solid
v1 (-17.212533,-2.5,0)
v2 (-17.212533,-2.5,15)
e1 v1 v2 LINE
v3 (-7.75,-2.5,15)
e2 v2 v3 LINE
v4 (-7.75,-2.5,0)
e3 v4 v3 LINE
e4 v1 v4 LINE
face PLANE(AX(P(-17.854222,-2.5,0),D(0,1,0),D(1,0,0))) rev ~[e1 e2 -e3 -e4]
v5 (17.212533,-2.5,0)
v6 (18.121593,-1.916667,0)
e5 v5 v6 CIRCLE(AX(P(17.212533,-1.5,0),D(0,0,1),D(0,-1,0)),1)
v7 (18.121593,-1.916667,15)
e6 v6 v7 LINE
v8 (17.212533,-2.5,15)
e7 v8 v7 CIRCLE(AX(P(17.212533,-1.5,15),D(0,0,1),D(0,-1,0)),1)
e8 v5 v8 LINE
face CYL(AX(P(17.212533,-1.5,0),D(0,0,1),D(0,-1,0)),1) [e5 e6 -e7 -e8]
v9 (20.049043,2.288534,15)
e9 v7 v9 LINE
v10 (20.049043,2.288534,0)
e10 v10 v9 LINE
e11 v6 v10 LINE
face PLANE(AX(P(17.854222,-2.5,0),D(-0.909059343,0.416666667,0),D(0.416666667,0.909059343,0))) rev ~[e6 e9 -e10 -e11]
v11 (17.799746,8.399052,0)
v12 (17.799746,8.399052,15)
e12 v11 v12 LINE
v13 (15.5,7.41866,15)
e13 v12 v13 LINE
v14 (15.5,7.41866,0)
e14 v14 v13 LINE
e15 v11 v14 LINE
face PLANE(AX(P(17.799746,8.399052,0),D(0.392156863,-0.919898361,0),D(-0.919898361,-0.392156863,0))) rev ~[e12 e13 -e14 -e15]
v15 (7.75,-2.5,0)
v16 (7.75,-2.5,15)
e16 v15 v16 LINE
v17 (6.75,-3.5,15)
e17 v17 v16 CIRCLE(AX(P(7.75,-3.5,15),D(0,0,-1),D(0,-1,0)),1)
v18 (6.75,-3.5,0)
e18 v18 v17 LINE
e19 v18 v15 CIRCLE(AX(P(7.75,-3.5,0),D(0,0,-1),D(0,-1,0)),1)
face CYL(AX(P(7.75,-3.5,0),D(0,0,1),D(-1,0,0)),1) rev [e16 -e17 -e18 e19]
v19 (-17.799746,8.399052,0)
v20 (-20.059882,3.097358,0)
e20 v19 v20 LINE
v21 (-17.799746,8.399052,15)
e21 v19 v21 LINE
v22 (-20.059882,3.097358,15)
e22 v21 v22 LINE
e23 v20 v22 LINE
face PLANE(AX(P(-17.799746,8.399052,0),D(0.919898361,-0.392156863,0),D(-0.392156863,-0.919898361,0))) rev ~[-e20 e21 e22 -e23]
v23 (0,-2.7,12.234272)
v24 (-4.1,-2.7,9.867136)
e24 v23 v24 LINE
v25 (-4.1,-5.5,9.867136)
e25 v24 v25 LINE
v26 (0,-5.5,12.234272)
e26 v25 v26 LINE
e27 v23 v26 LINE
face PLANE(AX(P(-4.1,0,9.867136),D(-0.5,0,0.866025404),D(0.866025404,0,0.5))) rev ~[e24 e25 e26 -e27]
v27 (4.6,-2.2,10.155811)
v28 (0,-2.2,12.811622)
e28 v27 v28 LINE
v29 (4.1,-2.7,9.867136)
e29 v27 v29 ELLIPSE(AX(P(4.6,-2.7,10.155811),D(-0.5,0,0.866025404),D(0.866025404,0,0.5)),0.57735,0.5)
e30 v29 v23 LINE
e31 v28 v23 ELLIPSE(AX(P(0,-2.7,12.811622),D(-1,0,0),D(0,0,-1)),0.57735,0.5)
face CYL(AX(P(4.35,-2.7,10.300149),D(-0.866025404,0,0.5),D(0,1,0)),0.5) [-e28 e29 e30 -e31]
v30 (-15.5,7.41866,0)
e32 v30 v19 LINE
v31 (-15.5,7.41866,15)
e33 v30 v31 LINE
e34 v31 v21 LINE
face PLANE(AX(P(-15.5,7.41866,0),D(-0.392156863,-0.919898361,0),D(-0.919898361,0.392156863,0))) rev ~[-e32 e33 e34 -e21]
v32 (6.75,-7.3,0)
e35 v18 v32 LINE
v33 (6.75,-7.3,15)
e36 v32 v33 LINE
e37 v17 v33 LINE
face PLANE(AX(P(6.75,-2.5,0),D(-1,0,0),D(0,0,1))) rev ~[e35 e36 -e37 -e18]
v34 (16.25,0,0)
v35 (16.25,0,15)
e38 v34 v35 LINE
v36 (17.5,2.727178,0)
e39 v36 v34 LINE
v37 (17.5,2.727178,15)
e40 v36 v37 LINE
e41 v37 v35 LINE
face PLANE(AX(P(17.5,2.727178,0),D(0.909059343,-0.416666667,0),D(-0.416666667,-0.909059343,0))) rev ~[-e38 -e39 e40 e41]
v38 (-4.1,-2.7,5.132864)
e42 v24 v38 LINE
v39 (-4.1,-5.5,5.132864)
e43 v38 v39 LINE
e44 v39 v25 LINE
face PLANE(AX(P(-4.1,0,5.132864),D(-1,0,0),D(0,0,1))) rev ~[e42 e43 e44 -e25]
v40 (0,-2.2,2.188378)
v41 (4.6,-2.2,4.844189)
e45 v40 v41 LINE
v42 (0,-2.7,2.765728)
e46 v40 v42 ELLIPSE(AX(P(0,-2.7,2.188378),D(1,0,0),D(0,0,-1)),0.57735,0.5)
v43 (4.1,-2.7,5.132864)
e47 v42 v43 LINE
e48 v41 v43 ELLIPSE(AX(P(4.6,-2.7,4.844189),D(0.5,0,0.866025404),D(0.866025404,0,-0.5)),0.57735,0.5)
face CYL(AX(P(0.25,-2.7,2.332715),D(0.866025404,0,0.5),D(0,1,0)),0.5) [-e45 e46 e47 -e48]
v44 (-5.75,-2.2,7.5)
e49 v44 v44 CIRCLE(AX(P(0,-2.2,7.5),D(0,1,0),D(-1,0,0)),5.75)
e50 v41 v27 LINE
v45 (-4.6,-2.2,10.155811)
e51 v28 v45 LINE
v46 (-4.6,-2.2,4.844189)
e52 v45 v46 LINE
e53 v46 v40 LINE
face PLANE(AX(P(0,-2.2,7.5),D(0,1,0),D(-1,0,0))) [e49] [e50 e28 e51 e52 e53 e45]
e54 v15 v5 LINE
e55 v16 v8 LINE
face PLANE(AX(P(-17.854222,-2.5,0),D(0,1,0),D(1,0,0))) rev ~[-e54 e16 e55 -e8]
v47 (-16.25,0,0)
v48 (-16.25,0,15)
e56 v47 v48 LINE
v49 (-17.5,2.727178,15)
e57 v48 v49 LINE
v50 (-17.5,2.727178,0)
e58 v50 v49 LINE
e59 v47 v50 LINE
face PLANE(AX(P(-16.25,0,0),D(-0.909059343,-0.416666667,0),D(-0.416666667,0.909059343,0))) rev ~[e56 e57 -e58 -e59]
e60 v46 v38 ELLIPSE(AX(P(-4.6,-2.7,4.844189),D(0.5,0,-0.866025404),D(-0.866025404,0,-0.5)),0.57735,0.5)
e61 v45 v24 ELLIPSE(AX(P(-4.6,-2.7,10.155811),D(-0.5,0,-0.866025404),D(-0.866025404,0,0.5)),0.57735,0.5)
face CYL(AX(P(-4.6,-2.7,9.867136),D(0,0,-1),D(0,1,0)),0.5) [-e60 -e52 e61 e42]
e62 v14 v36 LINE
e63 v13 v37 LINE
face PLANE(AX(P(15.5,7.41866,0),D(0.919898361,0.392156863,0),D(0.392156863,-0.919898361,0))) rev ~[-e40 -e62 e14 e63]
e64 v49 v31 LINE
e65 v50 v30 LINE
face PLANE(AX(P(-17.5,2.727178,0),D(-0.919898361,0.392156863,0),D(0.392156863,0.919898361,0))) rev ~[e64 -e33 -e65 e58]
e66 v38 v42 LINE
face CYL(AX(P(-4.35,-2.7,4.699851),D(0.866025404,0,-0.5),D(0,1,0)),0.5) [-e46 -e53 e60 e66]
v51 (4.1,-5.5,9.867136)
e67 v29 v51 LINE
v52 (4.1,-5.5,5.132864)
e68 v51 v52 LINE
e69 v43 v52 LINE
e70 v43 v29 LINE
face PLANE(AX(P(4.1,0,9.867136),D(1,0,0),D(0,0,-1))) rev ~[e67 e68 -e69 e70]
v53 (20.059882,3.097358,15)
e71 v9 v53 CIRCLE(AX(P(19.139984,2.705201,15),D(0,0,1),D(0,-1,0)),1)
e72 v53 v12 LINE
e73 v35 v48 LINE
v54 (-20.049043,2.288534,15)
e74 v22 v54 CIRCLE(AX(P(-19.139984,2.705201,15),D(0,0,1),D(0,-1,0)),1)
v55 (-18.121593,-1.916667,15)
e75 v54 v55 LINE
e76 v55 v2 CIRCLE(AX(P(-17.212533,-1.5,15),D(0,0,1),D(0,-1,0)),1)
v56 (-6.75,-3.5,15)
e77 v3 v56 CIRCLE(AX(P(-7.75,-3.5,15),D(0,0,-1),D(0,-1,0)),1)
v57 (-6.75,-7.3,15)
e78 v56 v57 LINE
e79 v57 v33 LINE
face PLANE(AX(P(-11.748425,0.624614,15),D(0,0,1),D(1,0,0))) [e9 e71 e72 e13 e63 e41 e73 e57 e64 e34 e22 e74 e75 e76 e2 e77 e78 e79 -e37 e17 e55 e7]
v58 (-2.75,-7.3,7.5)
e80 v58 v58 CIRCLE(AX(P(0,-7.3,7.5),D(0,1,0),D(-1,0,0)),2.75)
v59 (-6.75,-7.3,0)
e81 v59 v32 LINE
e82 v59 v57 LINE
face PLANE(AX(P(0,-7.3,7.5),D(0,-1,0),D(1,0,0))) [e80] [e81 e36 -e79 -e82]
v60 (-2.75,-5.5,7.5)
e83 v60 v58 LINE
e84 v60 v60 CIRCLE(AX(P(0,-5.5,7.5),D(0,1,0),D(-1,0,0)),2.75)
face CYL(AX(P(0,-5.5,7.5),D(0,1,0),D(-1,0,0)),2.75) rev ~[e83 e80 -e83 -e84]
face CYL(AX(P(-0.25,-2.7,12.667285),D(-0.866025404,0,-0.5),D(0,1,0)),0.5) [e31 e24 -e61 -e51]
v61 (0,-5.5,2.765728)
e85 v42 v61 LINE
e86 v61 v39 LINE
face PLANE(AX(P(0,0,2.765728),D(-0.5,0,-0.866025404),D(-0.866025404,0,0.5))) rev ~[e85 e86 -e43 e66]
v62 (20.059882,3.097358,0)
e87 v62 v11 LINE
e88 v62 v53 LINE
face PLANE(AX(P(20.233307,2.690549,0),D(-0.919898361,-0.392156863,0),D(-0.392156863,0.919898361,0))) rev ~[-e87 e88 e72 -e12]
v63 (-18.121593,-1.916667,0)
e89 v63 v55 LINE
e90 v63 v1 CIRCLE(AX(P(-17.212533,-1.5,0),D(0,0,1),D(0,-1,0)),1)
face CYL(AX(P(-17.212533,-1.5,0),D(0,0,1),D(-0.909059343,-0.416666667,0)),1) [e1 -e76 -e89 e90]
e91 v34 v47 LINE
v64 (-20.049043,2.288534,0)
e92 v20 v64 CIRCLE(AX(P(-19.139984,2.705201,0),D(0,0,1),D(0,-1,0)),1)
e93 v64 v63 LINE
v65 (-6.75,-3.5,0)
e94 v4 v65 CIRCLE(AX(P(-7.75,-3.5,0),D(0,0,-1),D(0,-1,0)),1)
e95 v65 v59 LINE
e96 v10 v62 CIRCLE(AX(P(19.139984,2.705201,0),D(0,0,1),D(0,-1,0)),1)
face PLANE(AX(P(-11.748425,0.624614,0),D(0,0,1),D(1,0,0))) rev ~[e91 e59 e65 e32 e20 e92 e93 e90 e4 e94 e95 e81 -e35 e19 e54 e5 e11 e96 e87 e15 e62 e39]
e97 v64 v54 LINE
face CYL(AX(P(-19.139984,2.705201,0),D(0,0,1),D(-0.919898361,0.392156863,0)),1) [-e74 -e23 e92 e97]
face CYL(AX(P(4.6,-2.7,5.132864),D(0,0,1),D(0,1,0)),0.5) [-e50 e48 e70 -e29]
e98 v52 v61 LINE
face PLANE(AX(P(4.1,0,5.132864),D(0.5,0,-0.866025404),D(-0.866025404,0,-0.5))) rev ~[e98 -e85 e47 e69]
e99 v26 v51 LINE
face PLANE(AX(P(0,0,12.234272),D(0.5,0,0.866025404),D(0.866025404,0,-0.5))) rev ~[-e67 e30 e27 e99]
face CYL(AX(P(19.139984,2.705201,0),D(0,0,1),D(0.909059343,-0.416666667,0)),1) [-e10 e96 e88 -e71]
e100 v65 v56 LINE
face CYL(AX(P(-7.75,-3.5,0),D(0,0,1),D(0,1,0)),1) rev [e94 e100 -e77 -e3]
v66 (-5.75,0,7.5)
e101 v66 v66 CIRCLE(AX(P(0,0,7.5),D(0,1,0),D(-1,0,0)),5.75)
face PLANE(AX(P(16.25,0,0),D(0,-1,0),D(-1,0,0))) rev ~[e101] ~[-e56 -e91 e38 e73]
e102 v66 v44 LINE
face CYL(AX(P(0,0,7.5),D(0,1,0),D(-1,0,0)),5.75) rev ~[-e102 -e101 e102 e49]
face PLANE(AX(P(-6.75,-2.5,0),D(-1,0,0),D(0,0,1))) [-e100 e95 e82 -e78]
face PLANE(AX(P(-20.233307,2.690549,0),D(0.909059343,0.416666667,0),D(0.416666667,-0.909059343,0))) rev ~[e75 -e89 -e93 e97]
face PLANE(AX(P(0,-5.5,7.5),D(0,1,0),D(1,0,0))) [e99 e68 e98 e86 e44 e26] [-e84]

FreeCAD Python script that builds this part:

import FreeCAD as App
import Part
import Sketcher
Q = App.Units.Quantity


def edges_at(feature, points):
    """Names of the edges that pass closest to the given points."""
    edges = feature.Shape.Edges
    near = lambda p: min(range(len(edges)), key=lambda i: edges[i].distToShape(Part.Vertex(*p))[0])
    return sorted({f"Edge{near(p) + 1}" for p in points})


def add_polygon(sketch, points):
    """Adds a closed chain of lines whose ends are joined by coincident constraints."""
    first, n = sketch.GeometryCount, len(points)
    for a, b in zip(points, points[1:] + points[:1]):
        sketch.addGeometry(Part.LineSegment(App.Vector(*a, 0), App.Vector(*b, 0)), False)
    for i in range(n):
        sketch.addConstraint(Sketcher.Constraint("Coincident", first + i, 2, first + (i + 1) % n, 1))

doc = App.newDocument("Part")
params = doc.addObject("Spreadsheet::Sheet", "Params")
for row, (alias, value) in enumerate([
    ("sketch1_length", "3 mm"),
    ("sketch1_width", "32.5 mm"),
    ("sketch1_length2", "5.1 mm"),
    ("sketch1_length3", "2.5 mm"),
    ("pad1_length", "15 mm"),
    ("sketch2_height", "15 mm"),
    ("sketch2_width", "13.5 mm"),
    ("pad2_length", "4.8 mm"),
    ("pocket1_length", "5.5 mm"),
    ("sketch4_diameter", "11.5 mm"),
    ("pocket2_length", "2.2 mm"),
    ("sketch5_diameter", "5.5 mm"),
    ("pocket3_length", "1.8 mm"),
    ("fillet_radius", "1 mm"),
    ("fillet2_radius", "0.5 mm"),
], start=1):
    params.set(f"A{row}", alias)
    params.set(f"B{row}", "=" + value)
    params.setAlias(f"B{row}", alias)

body = doc.addObject("PartDesign::Body", "Body")

sketch1 = body.newObject("Sketcher::SketchObject", "Sketch")
sketch1.AttachmentSupport = (doc.getObject("XY_Plane"), [""])
sketch1.MapMode = "FlatFace"
add_polygon(sketch1, [(-16.25, 0), (-17.5, 2.727178), (-15.5, 7.41866), (-17.799746, 8.399052), (-20.233307, 2.690549), (-17.854222, -2.5), (17.854222, -2.5), (20.233307, 2.690549), (17.799746, 8.399052), (15.5, 7.41866), (17.5, 2.727178), (16.25, 0)])
sketch1.addConstraint([
    Sketcher.Constraint("Horizontal", 5),
    Sketcher.Constraint("Horizontal", 11),
    Sketcher.Constraint("Symmetric", 10, 2, 11, 2, -1, 1),
    Sketcher.Constraint("Symmetric", 3, 2, 6, 2, -2),
    Sketcher.Constraint("Symmetric", 2, 2, 7, 2, -2),
    Sketcher.Constraint("Symmetric", 1, 2, 8, 2, -2),
    Sketcher.Constraint("Symmetric", 0, 2, 9, 2, -2),
    Sketcher.Constraint("Perpendicular", 1, 2),
    Sketcher.Constraint("Perpendicular", 2, 3),
    Sketcher.Constraint("Parallel", 0, 4),
    Sketcher.Constraint("Parallel", 6, 10),
    Sketcher.Constraint("Distance", 0, Q("3 mm")),
    Sketcher.Constraint("DistanceX", 11, 2, 11, 1, Q("32.5 mm")),
    Sketcher.Constraint("DistanceX", 0, 2, 1, 2, Q("2 mm")),
    Sketcher.Constraint("DistanceX", 1, 2, 8, 2, Q("31 mm")),
    Sketcher.Constraint("Distance", 1, Q("5.1 mm")),
    Sketcher.Constraint("Distance", 2, Q("2.5 mm")),
    Sketcher.Constraint("DistanceY", 4, 2, -1, 1, Q("2.5 mm")),
    Sketcher.Constraint("Distance", 3, Q("6.20558 mm")),
])
sketch1.setExpression("Constraints[23]", "Params.sketch1_length")
sketch1.setExpression("Constraints[24]", "Params.sketch1_width")
sketch1.setExpression("Constraints[27]", "Params.sketch1_length2")
sketch1.setExpression("Constraints[28]", "Params.sketch1_length3")
pad1 = body.newObject("PartDesign::Pad", "Pad")
pad1.Profile = sketch1
pad1.setExpression("Length", "Params.pad1_length")

sketch2 = body.newObject("Sketcher::SketchObject", "Sketch001")
sketch2.AttachmentSupport = (doc.getObject("XZ_Plane"), [""])
sketch2.MapMode = "FlatFace"
sketch2.AttachmentOffset = App.Placement(App.Vector(0, 0, 2.5), App.Rotation())
add_polygon(sketch2, [(-6.75, 15), (-6.75, 0), (6.75, 0), (6.75, 15)])
sketch2.addConstraint([
    Sketcher.Constraint("Vertical", 0),
    Sketcher.Constraint("Horizontal", 1),
    Sketcher.Constraint("Vertical", 2),
    Sketcher.Constraint("Horizontal", 3),
    Sketcher.Constraint("Symmetric", 0, 2, 1, 2, -1, 1),
    Sketcher.Constraint("DistanceY", 0, 2, 0, 1, Q("15 mm")),
    Sketcher.Constraint("DistanceX", 1, 1, 1, 2, Q("13.5 mm")),
])
sketch2.setExpression("Constraints[9]", "Params.sketch2_height")
sketch2.setExpression("Constraints[10]", "Params.sketch2_width")
pad2 = body.newObject("PartDesign::Pad", "Pad001")
pad2.Profile = sketch2
pad2.setExpression("Length", "Params.pad2_length")

sketch3 = body.newObject("Sketcher::SketchObject", "Sketch002")
sketch3.AttachmentSupport = (doc.getObject("XZ_Plane"), [""])
sketch3.MapMode = "FlatFace"
add_polygon(sketch3, [(-4.1, 9.867136), (0, 12.234272), (4.1, 9.867136), (4.1, 5.132864), (0, 2.765728), (-4.1, 5.132864)])
sketch3.addConstraint([
    Sketcher.Constraint("Vertical", 2),
    Sketcher.Constraint("Vertical", 5),
    Sketcher.Constraint("Symmetric", 2, 2, 4, 2, -2),
    Sketcher.Constraint("PointOnObject", 0, 2, -2),
    Sketcher.Constraint("PointOnObject", 3, 2, -2),
    Sketcher.Constraint("Parallel", 0, 3),
    Sketcher.Constraint("Parallel", 1, 4),
    Sketcher.Constraint("Angle", 0, Q("30 deg")),
    Sketcher.Constraint("DistanceX", -1, 1, 1, 2, Q("4.1 mm")),
    Sketcher.Constraint("DistanceY", 2, 2, 2, 1, Q("4.734272 mm")),
    Sketcher.Constraint("DistanceY", -1, 1, 0, 2, Q("12.234272 mm")),
])
pocket1 = body.newObject("PartDesign::Pocket", "Pocket")
pocket1.Profile = sketch3
pocket1.setExpression("Length", "Params.pocket1_length")
pocket1.Reversed = True

sketch4 = body.newObject("Sketcher::SketchObject", "Sketch003")
sketch4.AttachmentSupport = (doc.getObject("XZ_Plane"), [""])
sketch4.MapMode = "FlatFace"
sketch4.addGeometry(Part.Circle(App.Vector(0, 7.5, 0), App.Vector(0, 0, 1), 5.75), False)
sketch4.addConstraint([
    Sketcher.Constraint("PointOnObject", 0, 3, -2),
    Sketcher.Constraint("Diameter", 0, Q("11.5 mm")),
    Sketcher.Constraint("DistanceY", -1, 1, 0, 3, Q("7.5 mm")),
])
sketch4.setExpression("Constraints[1]", "Params.sketch4_diameter")
pocket2 = body.newObject("PartDesign::Pocket", "Pocket001")
pocket2.Profile = sketch4
pocket2.setExpression("Length", "Params.pocket2_length")
pocket2.Reversed = True

sketch5 = body.newObject("Sketcher::SketchObject", "Sketch004")
sketch5.AttachmentSupport = (doc.getObject("XZ_Plane"), [""])
sketch5.MapMode = "FlatFace"
sketch5.AttachmentOffset = App.Placement(App.Vector(0, 0, 5.5), App.Rotation())
sketch5.addGeometry(Part.Circle(App.Vector(0, 7.5, 0), App.Vector(0, 0, 1), 2.75), False)
sketch5.addConstraint([
    Sketcher.Constraint("PointOnObject", 0, 3, -2),
    Sketcher.Constraint("Diameter", 0, Q("5.5 mm")),
    Sketcher.Constraint("DistanceY", -1, 1, 0, 3, Q("7.5 mm")),
])
sketch5.setExpression("Constraints[1]", "Params.sketch5_diameter")
pocket3 = body.newObject("PartDesign::Pocket", "Pocket002")
pocket3.Profile = sketch5
pocket3.setExpression("Length", "Params.pocket3_length")
pocket3.Reversed = True
doc.recompute()

fillet = body.newObject("PartDesign::Fillet", "Fillet")
fillet.Base = (pocket3, edges_at(pocket3, [
    (-17.854, -2.5, 7.5),
    (-20.233, 2.691, 7.5),
    (20.233, 2.691, 7.5),
    (17.854, -2.5, 7.5),
    (-6.75, -2.5, 7.5),
    (6.75, -2.5, 7.5),
]))
fillet.setExpression("Radius", "Params.fillet_radius")
doc.recompute()

fillet2 = body.newObject("PartDesign::Fillet", "Fillet001")
fillet2.Base = (fillet, edges_at(fillet, [
    (-2.05, -2.2, 11.051),
    (-4.1, -2.2, 7.5),
    (-2.05, -2.2, 3.949),
    (2.05, -2.2, 3.949),
    (4.1, -2.2, 7.5),
    (2.05, -2.2, 11.051),
]))
fillet2.setExpression("Radius", "Params.fillet2_radius")

doc.recompute()
